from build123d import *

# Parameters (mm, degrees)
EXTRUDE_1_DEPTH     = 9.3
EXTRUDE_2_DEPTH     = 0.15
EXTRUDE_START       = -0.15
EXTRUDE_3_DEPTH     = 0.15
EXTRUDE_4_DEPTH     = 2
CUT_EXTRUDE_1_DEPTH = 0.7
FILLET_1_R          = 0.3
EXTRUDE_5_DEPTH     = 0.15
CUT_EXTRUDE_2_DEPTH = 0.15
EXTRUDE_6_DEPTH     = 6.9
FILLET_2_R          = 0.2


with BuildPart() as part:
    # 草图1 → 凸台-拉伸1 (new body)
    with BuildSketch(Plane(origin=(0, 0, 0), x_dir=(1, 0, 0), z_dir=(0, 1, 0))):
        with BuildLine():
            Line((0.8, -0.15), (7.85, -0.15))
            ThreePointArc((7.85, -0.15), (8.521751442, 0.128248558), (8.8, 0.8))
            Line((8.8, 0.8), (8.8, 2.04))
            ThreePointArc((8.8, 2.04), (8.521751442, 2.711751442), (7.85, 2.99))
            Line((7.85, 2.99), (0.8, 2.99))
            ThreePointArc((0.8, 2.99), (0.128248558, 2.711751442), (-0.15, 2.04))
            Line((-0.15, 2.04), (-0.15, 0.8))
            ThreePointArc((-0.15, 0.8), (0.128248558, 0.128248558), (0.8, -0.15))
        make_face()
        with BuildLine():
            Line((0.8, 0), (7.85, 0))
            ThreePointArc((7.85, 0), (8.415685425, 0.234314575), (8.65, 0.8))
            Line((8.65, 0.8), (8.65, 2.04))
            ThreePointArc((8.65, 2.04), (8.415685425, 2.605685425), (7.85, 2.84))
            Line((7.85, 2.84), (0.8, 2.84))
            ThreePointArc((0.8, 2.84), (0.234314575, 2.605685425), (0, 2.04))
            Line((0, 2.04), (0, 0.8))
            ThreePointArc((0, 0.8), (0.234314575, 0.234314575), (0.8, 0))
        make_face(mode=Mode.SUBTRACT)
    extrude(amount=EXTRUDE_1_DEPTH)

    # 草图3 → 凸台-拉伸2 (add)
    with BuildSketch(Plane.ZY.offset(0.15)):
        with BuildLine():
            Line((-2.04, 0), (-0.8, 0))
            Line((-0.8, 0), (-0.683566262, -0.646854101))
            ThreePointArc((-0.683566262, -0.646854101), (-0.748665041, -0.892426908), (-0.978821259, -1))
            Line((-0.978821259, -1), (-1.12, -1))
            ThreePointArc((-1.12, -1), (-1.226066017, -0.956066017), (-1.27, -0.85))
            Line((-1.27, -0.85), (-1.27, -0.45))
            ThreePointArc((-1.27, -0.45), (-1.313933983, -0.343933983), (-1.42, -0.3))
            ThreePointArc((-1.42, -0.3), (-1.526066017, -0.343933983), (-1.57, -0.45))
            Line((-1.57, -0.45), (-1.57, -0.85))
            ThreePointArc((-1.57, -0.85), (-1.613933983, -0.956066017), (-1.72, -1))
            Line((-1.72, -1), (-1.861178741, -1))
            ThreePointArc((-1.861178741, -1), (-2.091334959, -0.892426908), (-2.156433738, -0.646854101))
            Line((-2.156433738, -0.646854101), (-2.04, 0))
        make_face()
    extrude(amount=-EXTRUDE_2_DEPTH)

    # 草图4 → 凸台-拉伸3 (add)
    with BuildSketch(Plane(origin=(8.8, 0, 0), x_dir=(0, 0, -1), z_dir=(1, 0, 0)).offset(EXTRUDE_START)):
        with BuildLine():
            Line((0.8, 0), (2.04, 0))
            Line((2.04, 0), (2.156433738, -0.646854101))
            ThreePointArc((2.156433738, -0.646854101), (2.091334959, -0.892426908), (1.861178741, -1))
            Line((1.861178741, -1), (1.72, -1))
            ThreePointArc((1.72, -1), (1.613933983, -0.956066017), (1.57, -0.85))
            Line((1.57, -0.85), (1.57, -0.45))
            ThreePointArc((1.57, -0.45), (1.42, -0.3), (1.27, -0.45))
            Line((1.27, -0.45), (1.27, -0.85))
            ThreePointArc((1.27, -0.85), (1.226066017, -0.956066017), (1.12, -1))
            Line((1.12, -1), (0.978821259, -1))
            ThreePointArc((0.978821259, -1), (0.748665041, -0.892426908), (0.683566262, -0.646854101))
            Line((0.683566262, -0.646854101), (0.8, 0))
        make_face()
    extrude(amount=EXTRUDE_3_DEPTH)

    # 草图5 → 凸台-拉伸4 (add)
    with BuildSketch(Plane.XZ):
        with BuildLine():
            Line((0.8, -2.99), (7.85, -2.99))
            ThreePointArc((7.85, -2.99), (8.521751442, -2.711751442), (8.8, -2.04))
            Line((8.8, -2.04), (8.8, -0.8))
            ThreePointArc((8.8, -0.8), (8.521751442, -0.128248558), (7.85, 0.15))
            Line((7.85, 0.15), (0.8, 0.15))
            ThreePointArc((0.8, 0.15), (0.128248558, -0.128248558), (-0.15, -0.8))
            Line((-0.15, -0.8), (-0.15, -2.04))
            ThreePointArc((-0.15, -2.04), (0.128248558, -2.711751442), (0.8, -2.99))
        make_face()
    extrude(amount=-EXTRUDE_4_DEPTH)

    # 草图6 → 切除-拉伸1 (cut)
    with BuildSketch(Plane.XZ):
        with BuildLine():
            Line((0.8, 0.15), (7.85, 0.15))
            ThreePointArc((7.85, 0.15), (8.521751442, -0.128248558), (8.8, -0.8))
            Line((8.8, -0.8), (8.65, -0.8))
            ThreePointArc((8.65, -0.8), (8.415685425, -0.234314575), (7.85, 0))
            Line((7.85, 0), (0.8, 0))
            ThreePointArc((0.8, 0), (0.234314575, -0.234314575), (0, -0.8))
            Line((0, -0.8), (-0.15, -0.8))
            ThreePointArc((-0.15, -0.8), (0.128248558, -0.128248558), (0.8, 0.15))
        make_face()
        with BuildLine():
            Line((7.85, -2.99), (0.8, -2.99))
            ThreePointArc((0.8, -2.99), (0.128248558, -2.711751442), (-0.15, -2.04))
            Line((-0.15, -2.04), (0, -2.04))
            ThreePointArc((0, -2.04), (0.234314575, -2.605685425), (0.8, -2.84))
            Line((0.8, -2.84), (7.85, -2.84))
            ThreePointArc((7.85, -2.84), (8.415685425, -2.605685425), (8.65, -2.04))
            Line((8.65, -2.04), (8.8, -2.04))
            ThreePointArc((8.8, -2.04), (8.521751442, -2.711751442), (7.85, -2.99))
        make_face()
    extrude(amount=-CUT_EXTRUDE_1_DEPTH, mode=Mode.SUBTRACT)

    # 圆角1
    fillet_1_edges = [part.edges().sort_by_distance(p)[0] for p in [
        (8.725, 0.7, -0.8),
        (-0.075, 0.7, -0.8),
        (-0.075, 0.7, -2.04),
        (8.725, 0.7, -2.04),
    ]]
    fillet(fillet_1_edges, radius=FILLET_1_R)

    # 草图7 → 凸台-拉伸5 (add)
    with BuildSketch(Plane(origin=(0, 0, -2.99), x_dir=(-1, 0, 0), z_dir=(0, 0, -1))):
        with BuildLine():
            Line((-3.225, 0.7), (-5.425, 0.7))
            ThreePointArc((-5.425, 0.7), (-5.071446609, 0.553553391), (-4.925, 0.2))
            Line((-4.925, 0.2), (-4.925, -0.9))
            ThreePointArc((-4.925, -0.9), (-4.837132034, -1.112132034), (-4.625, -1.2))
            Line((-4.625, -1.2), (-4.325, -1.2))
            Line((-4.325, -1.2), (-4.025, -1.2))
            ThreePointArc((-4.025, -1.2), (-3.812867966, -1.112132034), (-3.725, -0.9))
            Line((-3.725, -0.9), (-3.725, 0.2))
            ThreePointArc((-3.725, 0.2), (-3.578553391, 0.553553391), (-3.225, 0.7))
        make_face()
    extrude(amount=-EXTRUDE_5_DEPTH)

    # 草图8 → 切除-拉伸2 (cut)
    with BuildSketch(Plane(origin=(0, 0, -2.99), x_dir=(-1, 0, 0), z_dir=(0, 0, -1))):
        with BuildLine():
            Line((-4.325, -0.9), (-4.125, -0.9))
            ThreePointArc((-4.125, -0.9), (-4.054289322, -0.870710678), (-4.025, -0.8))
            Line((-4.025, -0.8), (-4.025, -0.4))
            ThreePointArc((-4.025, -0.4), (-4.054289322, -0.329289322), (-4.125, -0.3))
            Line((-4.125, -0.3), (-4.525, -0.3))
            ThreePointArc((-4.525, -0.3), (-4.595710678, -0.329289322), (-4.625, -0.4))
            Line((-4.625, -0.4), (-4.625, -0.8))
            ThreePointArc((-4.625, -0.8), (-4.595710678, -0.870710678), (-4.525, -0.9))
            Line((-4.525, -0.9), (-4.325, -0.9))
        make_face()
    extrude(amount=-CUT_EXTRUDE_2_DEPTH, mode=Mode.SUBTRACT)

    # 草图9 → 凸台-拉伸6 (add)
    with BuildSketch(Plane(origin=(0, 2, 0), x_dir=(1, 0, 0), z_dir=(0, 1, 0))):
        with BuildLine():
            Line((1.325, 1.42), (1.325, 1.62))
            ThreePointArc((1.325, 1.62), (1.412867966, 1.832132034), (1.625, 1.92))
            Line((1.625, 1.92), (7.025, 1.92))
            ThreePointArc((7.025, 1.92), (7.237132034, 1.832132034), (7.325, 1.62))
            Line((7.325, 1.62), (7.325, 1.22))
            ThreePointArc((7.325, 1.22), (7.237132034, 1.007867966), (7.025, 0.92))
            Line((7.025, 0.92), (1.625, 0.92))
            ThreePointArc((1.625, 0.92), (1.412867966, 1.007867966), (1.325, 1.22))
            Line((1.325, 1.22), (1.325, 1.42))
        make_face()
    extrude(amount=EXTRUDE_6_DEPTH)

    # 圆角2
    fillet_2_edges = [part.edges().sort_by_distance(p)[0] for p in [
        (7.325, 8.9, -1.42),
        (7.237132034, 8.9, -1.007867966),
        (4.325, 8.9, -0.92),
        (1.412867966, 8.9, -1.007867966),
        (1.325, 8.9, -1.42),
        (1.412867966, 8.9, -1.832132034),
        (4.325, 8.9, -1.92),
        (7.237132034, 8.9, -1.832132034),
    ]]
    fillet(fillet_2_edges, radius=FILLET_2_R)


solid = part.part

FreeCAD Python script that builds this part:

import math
import FreeCAD as App
import Part
import Sketcher
from FreeCAD import Vector


def edges_at(feature, points):
    """Names of the edges that pass closest to the given points."""
    edges = feature.Shape.Edges
    near = lambda p: min(range(len(edges)), key=lambda i: edges[i].distToShape(Part.Vertex(*p))[0])
    return sorted({f"Edge{near(p) + 1}" for p in points})

doc = App.newDocument("Part")
params = doc.addObject("Spreadsheet::Sheet", "Params")
for row, (alias, value) in enumerate([
    ("sketch1_radius", "0.8 mm"),
    ("sketch1_radius2", "0.95 mm"),
    ("sketch1_width", "7.05 mm"),
    ("sketch1_height", "1.24 mm"),
    ("pad1_length", "9.3 mm"),
    ("sketch2_radius", "0.3 mm"),
    ("sketch2_radius2", "0.15 mm"),
    ("sketch2_width", "0.4 mm"),
    ("sketch2_height", "1.24 mm"),
    ("pad2_length", "0.15 mm"),
    ("sketch3_radius", "0.3 mm"),
    ("sketch3_radius2", "0.15 mm"),
    ("sketch3_width", "0.4 mm"),
    ("sketch3_height", "1.24 mm"),
    ("pad3_length", "0.15 mm"),
    ("sketch4_radius", "0.95 mm"),
    ("sketch4_height", "1.24 mm"),
    ("pad4_length", "2 mm"),
    ("sketch5_radius", "0.8 mm"),
    ("sketch5_radius2", "0.95 mm"),
    ("sketch5_width", "7.05 mm"),
    ("pocket1_length", "0.7 mm"),
    ("fillet_radius", "0.3 mm"),
    ("sketch6_radius", "0.5 mm"),
    ("sketch6_radius2", "0.3 mm"),
    ("sketch6_width", "2.2 mm"),
    ("sketch6_height", "1.1 mm"),
    ("pad5_length", "0.15 mm"),
    ("sketch7_radius", "0.1 mm"),
    ("sketch7_width", "0.4 mm"),
    ("pocket2_length", "0.15 mm"),
    ("sketch8_radius", "0.3 mm"),
    ("sketch8_width", "5.4 mm"),
    ("sketch8_height", "0.4 mm"),
    ("pad6_length", "6.9 mm"),
    ("fillet2_radius", "0.2 mm"),
], start=1):
    params.set(f"A{row}", alias)
    params.set(f"B{row}", "=" + value)
    params.setAlias(f"B{row}", alias)

body = doc.addObject("PartDesign::Body", "Body")

# Sketch on XZ plane
sketch1 = body.newObject("Sketcher::SketchObject", "Sketch")
sketch1.AttachmentSupport = (doc.getObject("XZ_Plane"), [""])
sketch1.MapMode = "FlatFace"
sketch1.addGeometry([
    Part.LineSegment(Vector(0.8, 0.15, 0), Vector(7.85, 0.15, 0)),  # 0
    Part.ArcOfCircle(Part.Circle(Vector(7.85, -0.8, 0), Vector(0, 0, 1), 0.95), math.radians(0), math.radians(90)),  # 1
    Part.LineSegment(Vector(8.8, -0.8, 0), Vector(8.8, -2.04, 0)),  # 2
    Part.ArcOfCircle(Part.Circle(Vector(7.85, -2.04, 0), Vector(0, 0, 1), 0.95), math.radians(-90), math.radians(0)),  # 3
    Part.LineSegment(Vector(7.85, -2.99, 0), Vector(0.8, -2.99, 0)),  # 4
    Part.ArcOfCircle(Part.Circle(Vector(0.8, -2.04, 0), Vector(0, 0, 1), 0.95), math.radians(180), math.radians(270)),  # 5
    Part.LineSegment(Vector(-0.15, -2.04, 0), Vector(-0.15, -0.8, 0)),  # 6
    Part.ArcOfCircle(Part.Circle(Vector(0.8, -0.8, 0), Vector(0, 0, 1), 0.95), math.radians(90), math.radians(180)),  # 7
    Part.LineSegment(Vector(7.85, 0, 0), Vector(0.8, 0, 0)),  # 8
    Part.ArcOfCircle(Part.Circle(Vector(0.8, -0.8, 0), Vector(0, 0, 1), 0.8), math.radians(90), math.radians(180)),  # 9
    Part.LineSegment(Vector(0, -0.8, 0), Vector(0, -2.04, 0)),  # 10
    Part.ArcOfCircle(Part.Circle(Vector(0.8, -2.04, 0), Vector(0, 0, 1), 0.8), math.radians(180), math.radians(270)),  # 11
    Part.LineSegment(Vector(0.8, -2.84, 0), Vector(7.85, -2.84, 0)),  # 12
    Part.ArcOfCircle(Part.Circle(Vector(7.85, -2.04, 0), Vector(0, 0, 1), 0.8), math.radians(-90), math.radians(0)),  # 13
    Part.LineSegment(Vector(8.65, -2.04, 0), Vector(8.65, -0.8, 0)),  # 14
    Part.ArcOfCircle(Part.Circle(Vector(7.85, -0.8, 0), Vector(0, 0, 1), 0.8), math.radians(0), math.radians(90)),  # 15
], False)
sketch1.addConstraint([
    Sketcher.Constraint("Tangent", 0, 2, 1, 2),
    Sketcher.Constraint("Tangent", 1, 1, 2, 1),
    Sketcher.Constraint("Tangent", 2, 2, 3, 2),
    Sketcher.Constraint("Tangent", 3, 1, 4, 1),
    Sketcher.Constraint("Tangent", 4, 2, 5, 2),
    Sketcher.Constraint("Tangent", 5, 1, 6, 1),
    Sketcher.Constraint("Tangent", 6, 2, 7, 2),
    Sketcher.Constraint("Tangent", 7, 1, 0, 1),
    Sketcher.Constraint("Tangent", 8, 2, 9, 1),
    Sketcher.Constraint("Tangent", 9, 2, 10, 1),
    Sketcher.Constraint("Tangent", 10, 2, 11, 1),
    Sketcher.Constraint("Tangent", 11, 2, 12, 1),
    Sketcher.Constraint("Tangent", 12, 2, 13, 1),
    Sketcher.Constraint("Tangent", 13, 2, 14, 1),
    Sketcher.Constraint("Tangent", 14, 2, 15, 1),
    Sketcher.Constraint("Tangent", 15, 2, 8, 1),
    Sketcher.Constraint("Horizontal", 0),
    Sketcher.Constraint("Vertical", 2),
    Sketcher.Constraint("Horizontal", 4),
    Sketcher.Constraint("Vertical", 6),
    Sketcher.Constraint("Horizontal", 8),
    Sketcher.Constraint("Vertical", 10),
    Sketcher.Constraint("Horizontal", 12),
    Sketcher.Constraint("Vertical", 14),
    Sketcher.Constraint("Coincident", 9, 3, 7, 3),
    Sketcher.Constraint("Coincident", 11, 3, 5, 3),
    Sketcher.Constraint("Coincident", 13, 3, 3, 3),
    Sketcher.Constraint("Equal", 1, 3),
    Sketcher.Constraint("Equal", 3, 5),
    Sketcher.Constraint("Equal", 5, 7),
    Sketcher.Constraint("Equal", 13, 15),
    Sketcher.Constraint("PointOnObject", 8, 2, -1),
    Sketcher.Constraint("PointOnObject", 9, 2, -2),
    Sketcher.Constraint("Radius", 9, 0.8),
    Sketcher.Constraint("Radius", 1, 0.95),
    Sketcher.Constraint("DistanceX", 0, 1, 0, 2, 7.05),
    Sketcher.Constraint("DistanceY", 2, 2, 2, 1, 1.24),
])
sketch1.setExpression("Constraints[33]", "Params.sketch1_radius")
sketch1.setExpression("Constraints[34]", "Params.sketch1_radius2")
sketch1.setExpression("Constraints[35]", "Params.sketch1_width")
sketch1.setExpression("Constraints[36]", "Params.sketch1_height")
pad1 = body.newObject("PartDesign::Pad", "Pad")
pad1.Profile = sketch1
pad1.setExpression("Length", "Params.pad1_length")
pad1.Reversed = True

# Sketch on YZ plane
sketch2 = body.newObject("Sketcher::SketchObject", "Sketch001")
sketch2.AttachmentSupport = (doc.getObject("YZ_Plane"), [""])
sketch2.MapMode = "FlatFace"
sketch2.AttachmentOffset = App.Placement(Vector(0, 0, -0.15), App.Rotation())
sketch2.addGeometry([
    Part.LineSegment(Vector(0, -0.8, 0), Vector(0, -2.04, 0)),  # 0
    Part.LineSegment(Vector(0, -2.04, 0), Vector(-0.646854, -2.156434, 0)),  # 1
    Part.ArcOfCircle(Part.Circle(Vector(-0.7, -1.861179, 0), Vector(0, 0, 1), 0.3), math.radians(-180), math.radians(-79.796027)),  # 2
    Part.LineSegment(Vector(-1, -1.861179, 0), Vector(-1, -1.72, 0)),  # 3
    Part.ArcOfCircle(Part.Circle(Vector(-0.85, -1.72, 0), Vector(0, 0, 1), 0.15), math.radians(90), math.radians(180)),  # 4
    Part.LineSegment(Vector(-0.85, -1.57, 0), Vector(-0.45, -1.57, 0)),  # 5
    Part.ArcOfCircle(Part.Circle(Vector(-0.45, -1.42, 0), Vector(0, 0, 1), 0.15), math.radians(-90), math.radians(0)),  # 6
    Part.ArcOfCircle(Part.Circle(Vector(-0.45, -1.42, 0), Vector(0, 0, 1), 0.15), math.radians(0), math.radians(90)),  # 7
    Part.LineSegment(Vector(-0.45, -1.27, 0), Vector(-0.85, -1.27, 0)),  # 8
    Part.ArcOfCircle(Part.Circle(Vector(-0.85, -1.12, 0), Vector(0, 0, 1), 0.15), math.radians(-180), math.radians(-90)),  # 9
    Part.LineSegment(Vector(-1, -1.12, 0), Vector(-1, -0.978821, 0)),  # 10
    Part.ArcOfCircle(Part.Circle(Vector(-0.7, -0.978821, 0), Vector(0, 0, 1), 0.3), math.radians(79.796027), math.radians(180)),  # 11
    Part.LineSegment(Vector(-0.646854, -0.683566, 0), Vector(0, -0.8, 0)),  # 12
], False)
sketch2.addConstraint([
    Sketcher.Constraint("Coincident", 0, 2, 1, 1),
    Sketcher.Constraint("Tangent", 1, 2, 2, 2),
    Sketcher.Constraint("Tangent", 2, 1, 3, 1),
    Sketcher.Constraint("Tangent", 3, 2, 4, 2),
    Sketcher.Constraint("Tangent", 4, 1, 5, 1),
    Sketcher.Constraint("Tangent", 5, 2, 6, 1),
    Sketcher.Constraint("Tangent", 6, 2, 7, 1),
    Sketcher.Constraint("Tangent", 7, 2, 8, 1),
    Sketcher.Constraint("Tangent", 8, 2, 9, 2),
    Sketcher.Constraint("Tangent", 9, 1, 10, 1),
    Sketcher.Constraint("Tangent", 10, 2, 11, 2),
    Sketcher.Constraint("Tangent", 11, 1, 12, 1),
    Sketcher.Constraint("Coincident", 12, 2, 0, 1),
    Sketcher.Constraint("Vertical", 0),
    Sketcher.Constraint("Vertical", 3),
    Sketcher.Constraint("Horizontal", 5),
    Sketcher.Constraint("Horizontal", 8),
    Sketcher.Constraint("Vertical", 10),
    Sketcher.Constraint("Equal", 4, 6),
    Sketcher.Constraint("Equal", 6, 7),
    Sketcher.Constraint("Equal", 7, 9),
    Sketcher.Constraint("Equal", 2, 11),
    Sketcher.Constraint("PointOnObject", 0, 2, -2),
    Sketcher.Constraint("Horizontal", 7, 3, 6, 2),
    Sketcher.Constraint("Vertical", 4, 3, 9, 3),
    Sketcher.Constraint("Vertical", 1, 2, 11, 1),
    Sketcher.Constraint("Equal", 3, 10),
    Sketcher.Constraint("Radius", 2, 0.3),
    Sketcher.Constraint("Radius", 4, 0.15),
    Sketcher.Constraint("DistanceX", 5, 1, 5, 2, 0.4),
    Sketcher.Constraint("DistanceX", 2, 1, -1, 1, 1.0),
    Sketcher.Constraint("DistanceY", 0, 2, 0, 1, 1.24),
    Sketcher.Constraint("DistanceY", 12, 2, -1, 1, 0.8),
    Sketcher.Constraint("DistanceY", 3, 1, 3, 2, 0.141179),
])
sketch2.setExpression("Constraints[27]", "Params.sketch2_radius")
sketch2.setExpression("Constraints[28]", "Params.sketch2_radius2")
sketch2.setExpression("Constraints[29]", "Params.sketch2_width")
sketch2.setExpression("Constraints[31]", "Params.sketch2_height")
pad2 = body.newObject("PartDesign::Pad", "Pad001")
pad2.Profile = sketch2
pad2.setExpression("Length", "Params.pad2_length")

# Sketch on YZ plane
sketch3 = body.newObject("Sketcher::SketchObject", "Sketch002")
sketch3.AttachmentSupport = (doc.getObject("YZ_Plane"), [""])
sketch3.MapMode = "FlatFace"
sketch3.AttachmentOffset = App.Placement(Vector(0, 0, 8.65), App.Rotation())
sketch3.addGeometry([
    Part.LineSegment(Vector(0, -2.04, 0), Vector(0, -0.8, 0)),  # 0
    Part.LineSegment(Vector(0, -0.8, 0), Vector(-0.646854, -0.683566, 0)),  # 1
    Part.ArcOfCircle(Part.Circle(Vector(-0.7, -0.978821, 0), Vector(0, 0, 1), 0.3), math.radians(79.796027), math.radians(180)),  # 2
    Part.LineSegment(Vector(-1, -0.978821, 0), Vector(-1, -1.12, 0)),  # 3
    Part.ArcOfCircle(Part.Circle(Vector(-0.85, -1.12, 0), Vector(0, 0, 1), 0.15), math.radians(-180), math.radians(-90)),  # 4
    Part.LineSegment(Vector(-0.85, -1.27, 0), Vector(-0.45, -1.27, 0)),  # 5
    Part.ArcOfCircle(Part.Circle(Vector(-0.45, -1.42, 0), Vector(0, 0, 1), 0.15), math.radians(-90), math.radians(90)),  # 6
    Part.LineSegment(Vector(-0.45, -1.57, 0), Vector(-0.85, -1.57, 0)),  # 7
    Part.ArcOfCircle(Part.Circle(Vector(-0.85, -1.72, 0), Vector(0, 0, 1), 0.15), math.radians(90), math.radians(180)),  # 8
    Part.LineSegment(Vector(-1, -1.72, 0), Vector(-1, -1.861179, 0)),  # 9
    Part.ArcOfCircle(Part.Circle(Vector(-0.7, -1.861179, 0), Vector(0, 0, 1), 0.3), math.radians(-180), math.radians(-79.796027)),  # 10
    Part.LineSegment(Vector(-0.646854, -2.156434, 0), Vector(0, -2.04, 0)),  # 11
], False)
sketch3.addConstraint([
    Sketcher.Constraint("Coincident", 0, 2, 1, 1),
    Sketcher.Constraint("Tangent", 1, 2, 2, 1),
    Sketcher.Constraint("Tangent", 2, 2, 3, 1),
    Sketcher.Constraint("Tangent", 3, 2, 4, 1),
    Sketcher.Constraint("Tangent", 4, 2, 5, 1),
    Sketcher.Constraint("Tangent", 5, 2, 6, 2),
    Sketcher.Constraint("Tangent", 6, 1, 7, 1),
    Sketcher.Constraint("Tangent", 7, 2, 8, 1),
    Sketcher.Constraint("Tangent", 8, 2, 9, 1),
    Sketcher.Constraint("Tangent", 9, 2, 10, 1),
    Sketcher.Constraint("Tangent", 10, 2, 11, 1),
    Sketcher.Constraint("Coincident", 11, 2, 0, 1),
    Sketcher.Constraint("Vertical", 0),
    Sketcher.Constraint("Vertical", 3),
    Sketcher.Constraint("Horizontal", 5),
    Sketcher.Constraint("Horizontal", 7),
    Sketcher.Constraint("Vertical", 9),
    Sketcher.Constraint("Equal", 4, 6),
    Sketcher.Constraint("Equal", 6, 8),
    Sketcher.Constraint("Equal", 2, 10),
    Sketcher.Constraint("PointOnObject", 0, 2, -2),
    Sketcher.Constraint("Vertical", 4, 3, 8, 3),
    Sketcher.Constraint("Vertical", 1, 2, 10, 2),
    Sketcher.Constraint("Equal", 3, 9),
    Sketcher.Constraint("Radius", 2, 0.3),
    Sketcher.Constraint("Radius", 4, 0.15),
    Sketcher.Constraint("DistanceX", 5, 1, 5, 2, 0.4),
    Sketcher.Constraint("DistanceX", 2, 2, -1, 1, 1.0),
    Sketcher.Constraint("DistanceY", 0, 1, 0, 2, 1.24),
    Sketcher.Constraint("DistanceY", 0, 2, -1, 1, 0.8),
    Sketcher.Constraint("DistanceY", 3, 2, 3, 1, 0.141179),
])
sketch3.setExpression("Constraints[24]", "Params.sketch3_radius")
sketch3.setExpression("Constraints[25]", "Params.sketch3_radius2")
sketch3.setExpression("Constraints[26]", "Params.sketch3_width")
sketch3.setExpression("Constraints[28]", "Params.sketch3_height")
pad3 = body.newObject("PartDesign::Pad", "Pad002")
pad3.Profile = sketch3
pad3.setExpression("Length", "Params.pad3_length")

# Sketch on XZ plane
sketch4 = body.newObject("Sketcher::SketchObject", "Sketch003")
sketch4.AttachmentSupport = (doc.getObject("XZ_Plane"), [""])
sketch4.MapMode = "FlatFace"
sketch4.addGeometry([
    Part.LineSegment(Vector(0.8, -2.99, 0), Vector(7.85, -2.99, 0)),  # 0
    Part.ArcOfCircle(Part.Circle(Vector(7.85, -2.04, 0), Vector(0, 0, 1), 0.95), math.radians(-90), math.radians(0)),  # 1
    Part.LineSegment(Vector(8.8, -2.04, 0), Vector(8.8, -0.8, 0)),  # 2
    Part.ArcOfCircle(Part.Circle(Vector(7.85, -0.8, 0), Vector(0, 0, 1), 0.95), math.radians(0), math.radians(90)),  # 3
    Part.LineSegment(Vector(7.85, 0.15, 0), Vector(0.8, 0.15, 0)),  # 4
    Part.ArcOfCircle(Part.Circle(Vector(0.8, -0.8, 0), Vector(0, 0, 1), 0.95), math.radians(90), math.radians(180)),  # 5
    Part.LineSegment(Vector(-0.15, -0.8, 0), Vector(-0.15, -2.04, 0)),  # 6
    Part.ArcOfCircle(Part.Circle(Vector(0.8, -2.04, 0), Vector(0, 0, 1), 0.95), math.radians(180), math.radians(270)),  # 7
], False)
sketch4.addConstraint([
    Sketcher.Constraint("Tangent", 0, 2, 1, 1),
    Sketcher.Constraint("Tangent", 1, 2, 2, 1),
    Sketcher.Constraint("Tangent", 2, 2, 3, 1),
    Sketcher.Constraint("Tangent", 3, 2, 4, 1),
    Sketcher.Constraint("Tangent", 4, 2, 5, 1),
    Sketcher.Constraint("Tangent", 5, 2, 6, 1),
    Sketcher.Constraint("Tangent", 6, 2, 7, 1),
    Sketcher.Constraint("Tangent", 7, 2, 0, 1),
    Sketcher.Constraint("Horizontal", 0),
    Sketcher.Constraint("Vertical", 2),
    Sketcher.Constraint("Horizontal", 4),
    Sketcher.Constraint("Vertical", 6),
    Sketcher.Constraint("Equal", 1, 3),
    Sketcher.Constraint("Equal", 3, 5),
    Sketcher.Constraint("Equal", 5, 7),
    Sketcher.Constraint("Radius", 1, 0.95),
    Sketcher.Constraint("DistanceX", 7, 3, 1, 2, 8.0),
    Sketcher.Constraint("DistanceY", 2, 1, 2, 2, 1.24),
    Sketcher.Constraint("DistanceY", 3, 3, -1, 1, 0.8),
    Sketcher.Constraint("DistanceX", -1, 1, 5, 3, 0.8),
])
sketch4.setExpression("Constraints[15]", "Params.sketch4_radius")
sketch4.setExpression("Constraints[17]", "Params.sketch4_height")
pad4 = body.newObject("PartDesign::Pad", "Pad003")
pad4.Profile = sketch4
pad4.setExpression("Length", "Params.pad4_length")
pad4.Reversed = True

# Sketch on XZ plane
sketch5 = body.newObject("Sketcher::SketchObject", "Sketch004")
sketch5.AttachmentSupport = (doc.getObject("XZ_Plane"), [""])
sketch5.MapMode = "FlatFace"
sketch5.addGeometry([
    Part.LineSegment(Vector(7.85, 0.15, 0), Vector(0.8, 0.15, 0)),  # 0
    Part.ArcOfCircle(Part.Circle(Vector(0.8, -0.8, 0), Vector(0, 0, 1), 0.95), math.radians(90), math.radians(180)),  # 1
    Part.LineSegment(Vector(-0.15, -0.8, 0), Vector(0, -0.8, 0)),  # 2
    Part.ArcOfCircle(Part.Circle(Vector(0.8, -0.8, 0), Vector(0, 0, 1), 0.8), math.radians(90), math.radians(180)),  # 3
    Part.LineSegment(Vector(0.8, 0, 0), Vector(7.85, 0, 0)),  # 4
    Part.ArcOfCircle(Part.Circle(Vector(7.85, -0.8, 0), Vector(0, 0, 1), 0.8), math.radians(0), math.radians(90)),  # 5
    Part.LineSegment(Vector(8.65, -0.8, 0), Vector(8.8, -0.8, 0)),  # 6
    Part.ArcOfCircle(Part.Circle(Vector(7.85, -0.8, 0), Vector(0, 0, 1), 0.95), math.radians(0), math.radians(90)),  # 7
    Part.LineSegment(Vector(0.8, -2.99, 0), Vector(7.85, -2.99, 0)),  # 8
    Part.ArcOfCircle(Part.Circle(Vector(7.85, -2.04, 0), Vector(0, 0, 1), 0.95), math.radians(-90), math.radians(0)),  # 9
    Part.LineSegment(Vector(8.8, -2.04, 0), Vector(8.65, -2.04, 0)),  # 10
    Part.ArcOfCircle(Part.Circle(Vector(7.85, -2.04, 0), Vector(0, 0, 1), 0.8), math.radians(-90), math.radians(0)),  # 11
    Part.LineSegment(Vector(7.85, -2.84, 0), Vector(0.8, -2.84, 0)),  # 12
    Part.ArcOfCircle(Part.Circle(Vector(0.8, -2.04, 0), Vector(0, 0, 1), 0.8), math.radians(180), math.radians(270)),  # 13
    Part.LineSegment(Vector(0, -2.04, 0), Vector(-0.15, -2.04, 0)),  # 14
    Part.ArcOfCircle(Part.Circle(Vector(0.8, -2.04, 0), Vector(0, 0, 1), 0.95), math.radians(180), math.radians(270)),  # 15
], False)
sketch5.addConstraint([
    Sketcher.Constraint("Tangent", 0, 2, 1, 1),
    Sketcher.Constraint("Coincident", 1, 2, 2, 1),
    Sketcher.Constraint("Coincident", 2, 2, 3, 2),
    Sketcher.Constraint("Tangent", 3, 1, 4, 1),
    Sketcher.Constraint("Tangent", 4, 2, 5, 2),
    Sketcher.Constraint("Coincident", 5, 1, 6, 1),
    Sketcher.Constraint("Coincident", 6, 2, 7, 1),
    Sketcher.Constraint("Tangent", 7, 2, 0, 1),
    Sketcher.Constraint("Tangent", 8, 2, 9, 1),
    Sketcher.Constraint("Coincident", 9, 2, 10, 1),
    Sketcher.Constraint("Coincident", 10, 2, 11, 2),
    Sketcher.Constraint("Tangent", 11, 1, 12, 1),
    Sketcher.Constraint("Tangent", 12, 2, 13, 2),
    Sketcher.Constraint("Coincident", 13, 1, 14, 1),
    Sketcher.Constraint("Coincident", 14, 2, 15, 1),
    Sketcher.Constraint("Tangent", 15, 2, 8, 1),
    Sketcher.Constraint("Horizontal", 0),
    Sketcher.Constraint("Horizontal", 2),
    Sketcher.Constraint("Horizontal", 4),
    Sketcher.Constraint("Horizontal", 6),
    Sketcher.Constraint("Horizontal", 8),
    Sketcher.Constraint("Horizontal", 10),
    Sketcher.Constraint("Horizontal", 12),
    Sketcher.Constraint("Horizontal", 14),
    Sketcher.Constraint("Coincident", 3, 3, 1, 3),
    Sketcher.Constraint("Coincident", 7, 3, 5, 3),
    Sketcher.Constraint("Coincident", 11, 3, 9, 3),
    Sketcher.Constraint("Coincident", 15, 3, 13, 3),
    Sketcher.Constraint("Equal", 3, 5),
    Sketcher.Constraint("Equal", 7, 9),
    Sketcher.Constraint("Equal", 5, 11),
    Sketcher.Constraint("Equal", 11, 13),
    Sketcher.Constraint("PointOnObject", 2, 2, -2),
    Sketcher.Constraint("PointOnObject", 3, 1, -1),
    Sketcher.Constraint("PointOnObject", 13, 1, -2),
    Sketcher.Constraint("Horizontal", 7, 3, 1, 2),
    Sketcher.Constraint("Horizontal", 2, 2, 5, 1),
    Sketcher.Constraint("Horizontal", 15, 3, 9, 2),
    Sketcher.Constraint("Horizontal", 10, 2, 13, 1),
    Sketcher.Constraint("Vertical", 7, 3, 9, 3),
    Sketcher.Constraint("Radius", 3, 0.8),
    Sketcher.Constraint("Radius", 1, 0.95),
    Sketcher.Constraint("DistanceX", 0, 2, 0, 1, 7.05),
    Sketcher.Constraint("DistanceY", 9, 3, -1, 1, 2.04),
])
sketch5.setExpression("Constraints[40]", "Params.sketch5_radius")
sketch5.setExpression("Constraints[41]", "Params.sketch5_radius2")
sketch5.setExpression("Constraints[42]", "Params.sketch5_width")
pocket1 = body.newObject("PartDesign::Pocket", "Pocket")
pocket1.Profile = sketch5
pocket1.setExpression("Length", "Params.pocket1_length")
doc.recompute()

fillet = body.newObject("PartDesign::Fillet", "Fillet")
fillet.Base = (pocket1, edges_at(pocket1, [
    (8.725, 0.7, -0.8),
    (-0.075, 0.7, -0.8),
    (-0.075, 0.7, -2.04),
    (8.725, 0.7, -2.04),
]))
fillet.setExpression("Radius", "Params.fillet_radius")

# Sketch on XY plane
sketch6 = body.newObject("Sketcher::SketchObject", "Sketch005")
sketch6.AttachmentSupport = (doc.getObject("XY_Plane"), [""])
sketch6.MapMode = "FlatFace"
sketch6.AttachmentOffset = App.Placement(Vector(0, 0, -2.99), App.Rotation())
sketch6.addGeometry([
    Part.LineSegment(Vector(3.225, 0.7, 0), Vector(5.425, 0.7, 0)),  # 0
    Part.ArcOfCircle(Part.Circle(Vector(5.425, 0.2, 0), Vector(0, 0, 1), 0.5), math.radians(90), math.radians(180)),  # 1
    Part.LineSegment(Vector(4.925, 0.2, 0), Vector(4.925, -0.9, 0)),  # 2
    Part.ArcOfCircle(Part.Circle(Vector(4.625, -0.9, 0), Vector(0, 0, 1), 0.3), math.radians(-90), math.radians(0)),  # 3
    Part.LineSegment(Vector(4.625, -1.2, 0), Vector(4.025, -1.2, 0)),  # 4
    Part.ArcOfCircle(Part.Circle(Vector(4.025, -0.9, 0), Vector(0, 0, 1), 0.3), math.radians(-180), math.radians(-90)),  # 5
    Part.LineSegment(Vector(3.725, -0.9, 0), Vector(3.725, 0.2, 0)),  # 6
    Part.ArcOfCircle(Part.Circle(Vector(3.225, 0.2, 0), Vector(0, 0, 1), 0.5), math.radians(0), math.radians(90)),  # 7
], False)
sketch6.addConstraint([
    Sketcher.Constraint("Tangent", 0, 2, 1, 1),
    Sketcher.Constraint("Tangent", 1, 2, 2, 1),
    Sketcher.Constraint("Tangent", 2, 2, 3, 2),
    Sketcher.Constraint("Tangent", 3, 1, 4, 1),
    Sketcher.Constraint("Tangent", 4, 2, 5, 2),
    Sketcher.Constraint("Tangent", 5, 1, 6, 1),
    Sketcher.Constraint("Tangent", 6, 2, 7, 1),
    Sketcher.Constraint("Tangent", 7, 2, 0, 1),
    Sketcher.Constraint("Horizontal", 0),
    Sketcher.Constraint("Vertical", 2),
    Sketcher.Constraint("Horizontal", 4),
    Sketcher.Constraint("Vertical", 6),
    Sketcher.Constraint("Equal", 3, 5),
    Sketcher.Constraint("Equal", 1, 7),
    Sketcher.Constraint("Radius", 1, 0.5),
    Sketcher.Constraint("Radius", 3, 0.3),
    Sketcher.Constraint("DistanceX", 0, 1, 0, 2, 2.2),
    Sketcher.Constraint("DistanceY", 2, 2, 2, 1, 1.1),
    Sketcher.Constraint("DistanceY", -1, 1, 1, 3, 0.2),
    Sketcher.Constraint("DistanceX", -1, 1, 1, 3, 5.425),
])
sketch6.setExpression("Constraints[14]", "Params.sketch6_radius")
sketch6.setExpression("Constraints[15]", "Params.sketch6_radius2")
sketch6.setExpression("Constraints[16]", "Params.sketch6_width")
sketch6.setExpression("Constraints[17]", "Params.sketch6_height")
pad5 = body.newObject("PartDesign::Pad", "Pad004")
pad5.Profile = sketch6
pad5.setExpression("Length", "Params.pad5_length")

# Sketch on XY plane
sketch7 = body.newObject("Sketcher::SketchObject", "Sketch006")
sketch7.AttachmentSupport = (doc.getObject("XY_Plane"), [""])
sketch7.MapMode = "FlatFace"
sketch7.AttachmentOffset = App.Placement(Vector(0, 0, -2.99), App.Rotation())
sketch7.addGeometry([
    Part.ArcOfCircle(Part.Circle(Vector(4.125, -0.8, 0), Vector(0, 0, 1), 0.1), math.radians(180), math.radians(270)),  # 0
    Part.LineSegment(Vector(4.025, -0.8, 0), Vector(4.025, -0.4, 0)),  # 1
    Part.ArcOfCircle(Part.Circle(Vector(4.125, -0.4, 0), Vector(0, 0, 1), 0.1), math.radians(90), math.radians(180)),  # 2
    Part.LineSegment(Vector(4.125, -0.3, 0), Vector(4.525, -0.3, 0)),  # 3
    Part.ArcOfCircle(Part.Circle(Vector(4.525, -0.4, 0), Vector(0, 0, 1), 0.1), math.radians(0), math.radians(90)),  # 4
    Part.LineSegment(Vector(4.625, -0.4, 0), Vector(4.625, -0.8, 0)),  # 5
    Part.ArcOfCircle(Part.Circle(Vector(4.525, -0.8, 0), Vector(0, 0, 1), 0.1), math.radians(-90), math.radians(0)),  # 6
    Part.LineSegment(Vector(4.525, -0.9, 0), Vector(4.125, -0.9, 0)),  # 7
], False)
sketch7.addConstraint([
    Sketcher.Constraint("Tangent", 0, 1, 1, 1),
    Sketcher.Constraint("Tangent", 1, 2, 2, 2),
    Sketcher.Constraint("Tangent", 2, 1, 3, 1),
    Sketcher.Constraint("Tangent", 3, 2, 4, 2),
    Sketcher.Constraint("Tangent", 4, 1, 5, 1),
    Sketcher.Constraint("Tangent", 5, 2, 6, 2),
    Sketcher.Constraint("Tangent", 6, 1, 7, 1),
    Sketcher.Constraint("Tangent", 7, 2, 0, 2),
    Sketcher.Constraint("Vertical", 1),
    Sketcher.Constraint("Horizontal", 3),
    Sketcher.Constraint("Vertical", 5),
    Sketcher.Constraint("Horizontal", 7),
    Sketcher.Constraint("Equal", 0, 2),
    Sketcher.Constraint("Equal", 2, 4),
    Sketcher.Constraint("Equal", 4, 6),
    Sketcher.Constraint("Equal", 7, 1),
    Sketcher.Constraint("Radius", 0, 0.1),
    Sketcher.Constraint("DistanceX", 3, 1, 3, 2, 0.4),
    Sketcher.Constraint("DistanceY", 0, 3, -1, 1, 0.8),
    Sketcher.Constraint("DistanceX", -1, 1, 0, 3, 4.125),
])
sketch7.setExpression("Constraints[16]", "Params.sketch7_radius")
sketch7.setExpression("Constraints[17]", "Params.sketch7_width")
pocket2 = body.newObject("PartDesign::Pocket", "Pocket001")
pocket2.Profile = sketch7
pocket2.setExpression("Length", "Params.pocket2_length")
pocket2.Reversed = True

# Sketch on XZ plane
sketch8 = body.newObject("Sketcher::SketchObject", "Sketch007")
sketch8.AttachmentSupport = (doc.getObject("XZ_Plane"), [""])
sketch8.MapMode = "FlatFace"
sketch8.AttachmentOffset = App.Placement(Vector(0, 0, -2), App.Rotation())
sketch8.addGeometry([
    Part.ArcOfCircle(Part.Circle(Vector(1.625, -1.62, 0), Vector(0, 0, 1), 0.3), math.radians(-180), math.radians(-90)),  # 0
    Part.LineSegment(Vector(1.325, -1.62, 0), Vector(1.325, -1.22, 0)),  # 1
    Part.ArcOfCircle(Part.Circle(Vector(1.625, -1.22, 0), Vector(0, 0, 1), 0.3), math.radians(90), math.radians(180)),  # 2
    Part.LineSegment(Vector(1.625, -0.92, 0), Vector(7.025, -0.92, 0)),  # 3
    Part.ArcOfCircle(Part.Circle(Vector(7.025, -1.22, 0), Vector(0, 0, 1), 0.3), math.radians(0), math.radians(90)),  # 4
    Part.LineSegment(Vector(7.325, -1.22, 0), Vector(7.325, -1.62, 0)),  # 5
    Part.ArcOfCircle(Part.Circle(Vector(7.025, -1.62, 0), Vector(0, 0, 1), 0.3), math.radians(-90), math.radians(0)),  # 6
    Part.LineSegment(Vector(7.025, -1.92, 0), Vector(1.625, -1.92, 0)),  # 7
], False)
sketch8.addConstraint([
    Sketcher.Constraint("Tangent", 0, 1, 1, 1),
    Sketcher.Constraint("Tangent", 1, 2, 2, 2),
    Sketcher.Constraint("Tangent", 2, 1, 3, 1),
    Sketcher.Constraint("Tangent", 3, 2, 4, 2),
    Sketcher.Constraint("Tangent", 4, 1, 5, 1),
    Sketcher.Constraint("Tangent", 5, 2, 6, 2),
    Sketcher.Constraint("Tangent", 6, 1, 7, 1),
    Sketcher.Constraint("Tangent", 7, 2, 0, 2),
    Sketcher.Constraint("Vertical", 1),
    Sketcher.Constraint("Horizontal", 3),
    Sketcher.Constraint("Vertical", 5),
    Sketcher.Constraint("Horizontal", 7),
    Sketcher.Constraint("Equal", 0, 2),
    Sketcher.Constraint("Equal", 2, 4),
    Sketcher.Constraint("Equal", 4, 6),
    Sketcher.Constraint("Radius", 0, 0.3),
    Sketcher.Constraint("DistanceX", 3, 1, 3, 2, 5.4),
    Sketcher.Constraint("DistanceY", 1, 1, 1, 2, 0.4),
    Sketcher.Constraint("DistanceY", 0, 3, -1, 1, 1.62),
    Sketcher.Constraint("DistanceX", -1, 1, 0, 3, 1.625),
])
sketch8.setExpression("Constraints[15]", "Params.sketch8_radius")
sketch8.setExpression("Constraints[16]", "Params.sketch8_width")
sketch8.setExpression("Constraints[17]", "Params.sketch8_height")
pad6 = body.newObject("PartDesign::Pad", "Pad005")
pad6.Profile = sketch8
pad6.setExpression("Length", "Params.pad6_length")
pad6.Reversed = True
doc.recompute()

fillet2 = body.newObject("PartDesign::Fillet", "Fillet001")
fillet2.Base = (pad6, edges_at(pad6, [
    (7.325, 8.9, -1.42),
    (7.237, 8.9, -1.008),
    (4.325, 8.9, -0.92),
    (1.413, 8.9, -1.008),
    (1.325, 8.9, -1.42),
    (1.413, 8.9, -1.832),
    (4.325, 8.9, -1.92),
    (7.237, 8.9, -1.832),
]))
fillet2.setExpression("Radius", "Params.fillet2_radius")

doc.recompute()
